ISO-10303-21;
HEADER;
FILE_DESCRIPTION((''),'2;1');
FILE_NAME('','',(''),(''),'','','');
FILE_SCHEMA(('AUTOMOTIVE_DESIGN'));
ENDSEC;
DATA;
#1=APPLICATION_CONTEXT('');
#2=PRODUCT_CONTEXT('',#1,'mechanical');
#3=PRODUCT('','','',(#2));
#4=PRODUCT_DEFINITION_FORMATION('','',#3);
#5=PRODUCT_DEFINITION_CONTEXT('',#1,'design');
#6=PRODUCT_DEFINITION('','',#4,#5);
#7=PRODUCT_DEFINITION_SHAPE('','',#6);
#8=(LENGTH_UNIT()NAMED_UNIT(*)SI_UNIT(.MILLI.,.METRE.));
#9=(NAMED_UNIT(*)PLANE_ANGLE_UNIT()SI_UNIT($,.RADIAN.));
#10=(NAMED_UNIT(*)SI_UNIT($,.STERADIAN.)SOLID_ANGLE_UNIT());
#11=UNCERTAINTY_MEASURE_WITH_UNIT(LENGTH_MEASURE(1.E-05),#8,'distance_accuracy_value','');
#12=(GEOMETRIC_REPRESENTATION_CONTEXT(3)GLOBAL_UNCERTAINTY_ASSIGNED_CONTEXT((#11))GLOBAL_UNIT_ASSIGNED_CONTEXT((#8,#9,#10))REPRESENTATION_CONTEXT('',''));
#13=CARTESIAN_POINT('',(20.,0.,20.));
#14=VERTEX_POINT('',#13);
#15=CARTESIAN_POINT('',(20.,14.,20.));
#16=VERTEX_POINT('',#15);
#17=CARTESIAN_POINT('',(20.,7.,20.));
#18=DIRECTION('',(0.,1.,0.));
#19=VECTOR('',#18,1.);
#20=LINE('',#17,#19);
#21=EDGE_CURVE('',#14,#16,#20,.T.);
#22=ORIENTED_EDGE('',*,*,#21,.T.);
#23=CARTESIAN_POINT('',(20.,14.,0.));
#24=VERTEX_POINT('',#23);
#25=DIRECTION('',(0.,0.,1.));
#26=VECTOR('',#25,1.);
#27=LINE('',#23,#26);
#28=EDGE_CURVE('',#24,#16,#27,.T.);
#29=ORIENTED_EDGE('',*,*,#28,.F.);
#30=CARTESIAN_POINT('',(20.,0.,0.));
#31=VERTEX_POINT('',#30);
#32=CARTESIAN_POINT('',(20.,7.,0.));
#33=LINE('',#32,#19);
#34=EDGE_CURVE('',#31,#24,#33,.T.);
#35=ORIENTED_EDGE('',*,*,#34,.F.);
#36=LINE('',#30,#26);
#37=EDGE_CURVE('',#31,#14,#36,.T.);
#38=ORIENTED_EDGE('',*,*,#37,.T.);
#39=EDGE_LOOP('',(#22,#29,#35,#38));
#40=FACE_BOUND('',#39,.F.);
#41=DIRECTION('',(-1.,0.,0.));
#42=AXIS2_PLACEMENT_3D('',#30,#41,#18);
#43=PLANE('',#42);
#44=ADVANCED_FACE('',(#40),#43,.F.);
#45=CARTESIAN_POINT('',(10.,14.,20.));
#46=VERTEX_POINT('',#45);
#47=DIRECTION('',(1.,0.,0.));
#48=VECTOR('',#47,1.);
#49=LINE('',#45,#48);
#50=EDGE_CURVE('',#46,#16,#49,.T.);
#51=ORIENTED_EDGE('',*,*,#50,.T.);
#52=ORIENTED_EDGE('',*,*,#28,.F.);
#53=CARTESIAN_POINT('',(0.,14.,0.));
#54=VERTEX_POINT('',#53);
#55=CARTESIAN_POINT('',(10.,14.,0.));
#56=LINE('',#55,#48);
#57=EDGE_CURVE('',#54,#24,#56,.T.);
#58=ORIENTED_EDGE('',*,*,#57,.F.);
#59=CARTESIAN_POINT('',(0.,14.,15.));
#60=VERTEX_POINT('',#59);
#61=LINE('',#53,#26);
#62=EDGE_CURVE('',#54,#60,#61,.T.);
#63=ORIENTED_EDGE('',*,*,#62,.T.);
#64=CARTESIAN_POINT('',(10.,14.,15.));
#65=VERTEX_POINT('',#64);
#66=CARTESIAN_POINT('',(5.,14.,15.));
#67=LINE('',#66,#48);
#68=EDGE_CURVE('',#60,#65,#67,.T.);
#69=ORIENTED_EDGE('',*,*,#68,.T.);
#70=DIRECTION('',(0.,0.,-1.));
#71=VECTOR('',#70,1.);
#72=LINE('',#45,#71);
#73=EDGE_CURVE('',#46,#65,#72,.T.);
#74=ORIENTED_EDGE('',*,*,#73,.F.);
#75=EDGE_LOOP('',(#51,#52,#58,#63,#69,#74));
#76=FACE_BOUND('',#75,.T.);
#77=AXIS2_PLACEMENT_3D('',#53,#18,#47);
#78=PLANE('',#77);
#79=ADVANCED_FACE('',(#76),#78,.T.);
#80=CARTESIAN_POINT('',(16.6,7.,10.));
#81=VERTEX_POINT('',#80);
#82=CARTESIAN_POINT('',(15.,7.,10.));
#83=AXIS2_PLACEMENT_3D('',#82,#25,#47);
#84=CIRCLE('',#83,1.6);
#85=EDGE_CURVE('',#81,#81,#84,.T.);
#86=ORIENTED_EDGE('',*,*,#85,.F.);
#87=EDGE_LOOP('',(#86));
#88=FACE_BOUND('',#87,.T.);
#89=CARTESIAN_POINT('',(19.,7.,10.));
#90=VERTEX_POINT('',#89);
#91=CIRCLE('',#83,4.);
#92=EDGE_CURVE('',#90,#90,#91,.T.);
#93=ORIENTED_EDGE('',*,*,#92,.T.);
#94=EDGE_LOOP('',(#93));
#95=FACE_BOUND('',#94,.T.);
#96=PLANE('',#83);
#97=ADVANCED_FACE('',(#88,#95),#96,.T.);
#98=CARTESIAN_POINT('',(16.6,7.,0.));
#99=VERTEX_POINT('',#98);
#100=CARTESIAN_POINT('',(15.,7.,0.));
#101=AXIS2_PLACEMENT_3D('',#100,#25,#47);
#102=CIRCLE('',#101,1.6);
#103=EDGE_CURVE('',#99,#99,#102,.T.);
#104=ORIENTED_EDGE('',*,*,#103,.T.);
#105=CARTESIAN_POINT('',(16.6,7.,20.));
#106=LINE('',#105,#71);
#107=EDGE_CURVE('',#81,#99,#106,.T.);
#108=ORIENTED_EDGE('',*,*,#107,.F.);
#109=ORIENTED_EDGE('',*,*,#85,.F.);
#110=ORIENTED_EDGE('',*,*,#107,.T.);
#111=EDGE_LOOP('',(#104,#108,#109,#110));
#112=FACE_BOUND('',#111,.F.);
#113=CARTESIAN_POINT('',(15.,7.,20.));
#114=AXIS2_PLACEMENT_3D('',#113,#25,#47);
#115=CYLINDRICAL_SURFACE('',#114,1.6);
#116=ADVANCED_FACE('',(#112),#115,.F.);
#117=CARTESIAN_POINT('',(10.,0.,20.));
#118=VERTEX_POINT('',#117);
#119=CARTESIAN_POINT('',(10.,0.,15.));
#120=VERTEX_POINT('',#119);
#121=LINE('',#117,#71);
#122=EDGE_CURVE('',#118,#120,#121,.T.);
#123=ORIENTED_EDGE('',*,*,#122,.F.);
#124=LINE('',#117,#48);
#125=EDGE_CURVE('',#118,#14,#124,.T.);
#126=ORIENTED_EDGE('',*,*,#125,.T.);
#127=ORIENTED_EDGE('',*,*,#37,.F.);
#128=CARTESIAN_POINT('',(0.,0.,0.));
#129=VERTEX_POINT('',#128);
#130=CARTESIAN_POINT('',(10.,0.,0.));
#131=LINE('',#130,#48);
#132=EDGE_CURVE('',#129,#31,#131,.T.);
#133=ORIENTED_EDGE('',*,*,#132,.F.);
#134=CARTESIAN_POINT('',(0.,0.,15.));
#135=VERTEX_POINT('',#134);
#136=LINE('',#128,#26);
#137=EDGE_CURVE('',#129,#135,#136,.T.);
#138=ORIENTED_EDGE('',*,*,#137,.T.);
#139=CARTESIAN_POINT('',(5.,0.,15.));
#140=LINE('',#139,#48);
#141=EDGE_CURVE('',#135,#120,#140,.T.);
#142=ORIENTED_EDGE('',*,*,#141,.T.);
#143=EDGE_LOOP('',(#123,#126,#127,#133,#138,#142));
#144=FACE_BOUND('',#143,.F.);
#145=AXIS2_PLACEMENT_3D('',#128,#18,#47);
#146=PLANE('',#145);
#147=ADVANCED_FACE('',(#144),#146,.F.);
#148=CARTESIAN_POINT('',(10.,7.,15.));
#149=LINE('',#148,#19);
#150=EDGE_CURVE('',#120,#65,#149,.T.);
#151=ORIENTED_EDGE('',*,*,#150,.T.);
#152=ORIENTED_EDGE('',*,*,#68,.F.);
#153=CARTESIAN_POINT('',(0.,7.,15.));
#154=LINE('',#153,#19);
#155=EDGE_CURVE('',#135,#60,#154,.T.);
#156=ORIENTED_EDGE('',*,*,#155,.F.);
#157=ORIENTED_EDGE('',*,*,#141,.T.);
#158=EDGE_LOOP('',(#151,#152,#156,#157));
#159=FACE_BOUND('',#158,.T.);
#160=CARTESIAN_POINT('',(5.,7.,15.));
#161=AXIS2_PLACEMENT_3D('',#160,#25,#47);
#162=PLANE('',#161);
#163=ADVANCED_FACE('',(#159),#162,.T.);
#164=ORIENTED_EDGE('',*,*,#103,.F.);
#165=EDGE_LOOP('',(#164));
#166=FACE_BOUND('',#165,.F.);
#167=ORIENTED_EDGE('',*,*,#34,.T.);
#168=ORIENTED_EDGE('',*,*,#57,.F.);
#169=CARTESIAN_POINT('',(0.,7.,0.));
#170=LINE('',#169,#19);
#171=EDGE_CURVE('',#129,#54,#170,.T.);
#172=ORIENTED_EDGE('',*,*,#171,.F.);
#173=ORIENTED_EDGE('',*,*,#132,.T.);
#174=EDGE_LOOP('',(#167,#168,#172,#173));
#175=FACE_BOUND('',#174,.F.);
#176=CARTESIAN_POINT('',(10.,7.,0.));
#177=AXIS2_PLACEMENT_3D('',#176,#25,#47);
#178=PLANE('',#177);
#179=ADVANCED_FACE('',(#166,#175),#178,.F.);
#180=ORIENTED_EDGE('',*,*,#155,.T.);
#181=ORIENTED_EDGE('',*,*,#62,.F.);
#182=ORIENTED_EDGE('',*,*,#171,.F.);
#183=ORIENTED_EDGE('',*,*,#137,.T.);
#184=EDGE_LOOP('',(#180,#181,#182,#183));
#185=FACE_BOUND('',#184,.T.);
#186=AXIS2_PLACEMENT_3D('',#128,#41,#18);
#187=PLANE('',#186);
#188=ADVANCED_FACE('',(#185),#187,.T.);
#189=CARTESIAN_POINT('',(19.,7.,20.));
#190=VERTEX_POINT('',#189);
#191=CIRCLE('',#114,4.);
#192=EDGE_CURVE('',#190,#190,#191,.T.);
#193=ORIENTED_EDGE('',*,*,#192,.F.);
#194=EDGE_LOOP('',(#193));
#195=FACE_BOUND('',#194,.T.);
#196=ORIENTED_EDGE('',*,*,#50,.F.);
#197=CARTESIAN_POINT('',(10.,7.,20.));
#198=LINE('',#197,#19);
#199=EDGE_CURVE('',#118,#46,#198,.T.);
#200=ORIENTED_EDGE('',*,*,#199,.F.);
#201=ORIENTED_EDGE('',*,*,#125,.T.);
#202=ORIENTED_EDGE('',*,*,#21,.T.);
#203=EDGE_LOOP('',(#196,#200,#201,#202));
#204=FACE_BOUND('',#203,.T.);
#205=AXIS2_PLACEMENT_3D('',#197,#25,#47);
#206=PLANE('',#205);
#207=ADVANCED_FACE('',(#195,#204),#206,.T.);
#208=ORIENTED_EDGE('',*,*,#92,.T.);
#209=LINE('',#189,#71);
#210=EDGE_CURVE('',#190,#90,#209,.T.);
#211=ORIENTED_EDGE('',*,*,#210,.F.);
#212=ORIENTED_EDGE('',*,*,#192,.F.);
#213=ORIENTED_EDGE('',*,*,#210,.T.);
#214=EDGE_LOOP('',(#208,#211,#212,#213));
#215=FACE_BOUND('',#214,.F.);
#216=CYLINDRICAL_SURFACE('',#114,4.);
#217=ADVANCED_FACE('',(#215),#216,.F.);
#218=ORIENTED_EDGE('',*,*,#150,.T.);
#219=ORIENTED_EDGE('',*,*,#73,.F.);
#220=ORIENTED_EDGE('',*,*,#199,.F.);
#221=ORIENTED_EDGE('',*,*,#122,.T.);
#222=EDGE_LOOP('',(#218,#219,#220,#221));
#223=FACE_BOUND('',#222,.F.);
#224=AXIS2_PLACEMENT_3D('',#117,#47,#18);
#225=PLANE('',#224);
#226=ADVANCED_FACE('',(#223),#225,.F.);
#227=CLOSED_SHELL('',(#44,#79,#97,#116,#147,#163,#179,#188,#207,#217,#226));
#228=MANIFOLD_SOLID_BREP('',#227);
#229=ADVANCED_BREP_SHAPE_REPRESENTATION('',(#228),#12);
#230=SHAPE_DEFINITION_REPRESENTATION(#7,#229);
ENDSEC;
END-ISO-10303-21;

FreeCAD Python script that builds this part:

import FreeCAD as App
import Part
import Sketcher
Q = App.Units.Quantity

doc = App.newDocument("Part")
params = doc.addObject("Spreadsheet::Sheet", "Params")
for row, (alias, value) in enumerate([
    ("sketch1_width", "20 mm"),
    ("sketch1_height", "14 mm"),
    ("pad1_length", "20 mm"),
    ("sketch2_width", "10 mm"),
    ("sketch2_height", "14 mm"),
    ("pocket1_length", "5 mm"),
    ("sketch3_diameter", "3.2 mm"),
    ("pocket2_length", "20 mm"),
    ("sketch4_diameter", "8 mm"),
    ("pocket3_length", "10 mm"),
], start=1):
    params.set(f"A{row}", alias)
    params.set(f"B{row}", "=" + value)
    params.setAlias(f"B{row}", alias)

body = doc.addObject("PartDesign::Body", "Body")

sketch1 = doc.addObject("Sketcher::SketchObject", "Sketch")
body.addObject(sketch1)
sketch1.AttachmentSupport = (doc.XY_Plane, [""])
sketch1.MapMode = "FlatFace"
sketch1.addGeometry([
    Part.LineSegment(App.Vector(0, 14, 0), App.Vector(0, 0, 0)),
    Part.LineSegment(App.Vector(0, 0, 0), App.Vector(20, 0, 0)),
    Part.LineSegment(App.Vector(20, 0, 0), App.Vector(20, 14, 0)),
    Part.LineSegment(App.Vector(20, 14, 0), App.Vector(0, 14, 0)),
], False)
sketch1.addConstraint([
    Sketcher.Constraint("Coincident", 0, 2, 1, 1),
    Sketcher.Constraint("Coincident", 1, 2, 2, 1),
    Sketcher.Constraint("Coincident", 2, 2, 3, 1),
    Sketcher.Constraint("Coincident", 3, 2, 0, 1),
    Sketcher.Constraint("Vertical", 0),
    Sketcher.Constraint("Horizontal", 1),
    Sketcher.Constraint("Vertical", 2),
    Sketcher.Constraint("Horizontal", 3),
    Sketcher.Constraint("Coincident", 0, 2, -1, 1),
    Sketcher.Constraint("DistanceX", 1, 1, 1, 2, Q("20 mm")),
    Sketcher.Constraint("DistanceY", 0, 2, 0, 1, Q("14 mm")),
])
sketch1.setExpression("Constraints[9]", "Params.sketch1_width")
sketch1.setExpression("Constraints[10]", "Params.sketch1_height")
pad1 = doc.addObject("PartDesign::Pad", "Pad")
body.addObject(pad1)
pad1.Profile = sketch1
pad1.setExpression("Length", "Params.pad1_length")

sketch2 = doc.addObject("Sketcher::SketchObject", "Sketch001")
body.addObject(sketch2)
sketch2.AttachmentSupport = (doc.XY_Plane, [""])
sketch2.MapMode = "FlatFace"
sketch2.AttachmentOffset = App.Placement(App.Vector(0, 0, 20), App.Rotation())
sketch2.addGeometry([
    Part.LineSegment(App.Vector(0, 14, 0), App.Vector(0, 0, 0)),
    Part.LineSegment(App.Vector(0, 0, 0), App.Vector(10, 0, 0)),
    Part.LineSegment(App.Vector(10, 0, 0), App.Vector(10, 14, 0)),
    Part.LineSegment(App.Vector(10, 14, 0), App.Vector(0, 14, 0)),
], False)
sketch2.addConstraint([
    Sketcher.Constraint("Coincident", 0, 2, 1, 1),
    Sketcher.Constraint("Coincident", 1, 2, 2, 1),
    Sketcher.Constraint("Coincident", 2, 2, 3, 1),
    Sketcher.Constraint("Coincident", 3, 2, 0, 1),
    Sketcher.Constraint("Vertical", 0),
    Sketcher.Constraint("Horizontal", 1),
    Sketcher.Constraint("Vertical", 2),
    Sketcher.Constraint("Horizontal", 3),
    Sketcher.Constraint("Coincident", 0, 2, -1, 1),
    Sketcher.Constraint("DistanceX", 1, 1, 1, 2, Q("10 mm")),
    Sketcher.Constraint("DistanceY", 0, 2, 0, 1, Q("14 mm")),
])
sketch2.setExpression("Constraints[9]", "Params.sketch2_width")
sketch2.setExpression("Constraints[10]", "Params.sketch2_height")
pocket1 = doc.addObject("PartDesign::Pocket", "Pocket")
body.addObject(pocket1)
pocket1.Profile = sketch2
pocket1.setExpression("Length", "Params.pocket1_length")

sketch3 = doc.addObject("Sketcher::SketchObject", "Sketch002")
body.addObject(sketch3)
sketch3.AttachmentSupport = (doc.XY_Plane, [""])
sketch3.MapMode = "FlatFace"
sketch3.AttachmentOffset = App.Placement(App.Vector(0, 0, 20), App.Rotation())
sketch3.addGeometry(Part.Circle(App.Vector(15, 7, 0), App.Vector(0, 0, 1), 1.6), False)
sketch3.addConstraint([
    Sketcher.Constraint("Diameter", 0, Q("3.2 mm")),
    Sketcher.Constraint("DistanceX", -1, 1, 0, 3, Q("15 mm")),
    Sketcher.Constraint("DistanceY", -1, 1, 0, 3, Q("7 mm")),
])
sketch3.setExpression("Constraints[0]", "Params.sketch3_diameter")
pocket2 = doc.addObject("PartDesign::Pocket", "Pocket001")
body.addObject(pocket2)
pocket2.Profile = sketch3
pocket2.setExpression("Length", "Params.pocket2_length")

sketch4 = doc.addObject("Sketcher::SketchObject", "Sketch003")
body.addObject(sketch4)
sketch4.AttachmentSupport = (doc.XY_Plane, [""])
sketch4.MapMode = "FlatFace"
sketch4.AttachmentOffset = App.Placement(App.Vector(0, 0, 20), App.Rotation())
sketch4.addGeometry(Part.Circle(App.Vector(15, 7, 0), App.Vector(0, 0, 1), 4), False)
sketch4.addConstraint([
    Sketcher.Constraint("Diameter", 0, Q("8 mm")),
    Sketcher.Constraint("DistanceX", -1, 1, 0, 3, Q("15 mm")),
    Sketcher.Constraint("DistanceY", -1, 1, 0, 3, Q("7 mm")),
])
sketch4.setExpression("Constraints[0]", "Params.sketch4_diameter")
pocket3 = doc.addObject("PartDesign::Pocket", "Pocket002")
body.addObject(pocket3)
pocket3.Profile = sketch4
pocket3.setExpression("Length", "Params.pocket3_length")

doc.recompute()
